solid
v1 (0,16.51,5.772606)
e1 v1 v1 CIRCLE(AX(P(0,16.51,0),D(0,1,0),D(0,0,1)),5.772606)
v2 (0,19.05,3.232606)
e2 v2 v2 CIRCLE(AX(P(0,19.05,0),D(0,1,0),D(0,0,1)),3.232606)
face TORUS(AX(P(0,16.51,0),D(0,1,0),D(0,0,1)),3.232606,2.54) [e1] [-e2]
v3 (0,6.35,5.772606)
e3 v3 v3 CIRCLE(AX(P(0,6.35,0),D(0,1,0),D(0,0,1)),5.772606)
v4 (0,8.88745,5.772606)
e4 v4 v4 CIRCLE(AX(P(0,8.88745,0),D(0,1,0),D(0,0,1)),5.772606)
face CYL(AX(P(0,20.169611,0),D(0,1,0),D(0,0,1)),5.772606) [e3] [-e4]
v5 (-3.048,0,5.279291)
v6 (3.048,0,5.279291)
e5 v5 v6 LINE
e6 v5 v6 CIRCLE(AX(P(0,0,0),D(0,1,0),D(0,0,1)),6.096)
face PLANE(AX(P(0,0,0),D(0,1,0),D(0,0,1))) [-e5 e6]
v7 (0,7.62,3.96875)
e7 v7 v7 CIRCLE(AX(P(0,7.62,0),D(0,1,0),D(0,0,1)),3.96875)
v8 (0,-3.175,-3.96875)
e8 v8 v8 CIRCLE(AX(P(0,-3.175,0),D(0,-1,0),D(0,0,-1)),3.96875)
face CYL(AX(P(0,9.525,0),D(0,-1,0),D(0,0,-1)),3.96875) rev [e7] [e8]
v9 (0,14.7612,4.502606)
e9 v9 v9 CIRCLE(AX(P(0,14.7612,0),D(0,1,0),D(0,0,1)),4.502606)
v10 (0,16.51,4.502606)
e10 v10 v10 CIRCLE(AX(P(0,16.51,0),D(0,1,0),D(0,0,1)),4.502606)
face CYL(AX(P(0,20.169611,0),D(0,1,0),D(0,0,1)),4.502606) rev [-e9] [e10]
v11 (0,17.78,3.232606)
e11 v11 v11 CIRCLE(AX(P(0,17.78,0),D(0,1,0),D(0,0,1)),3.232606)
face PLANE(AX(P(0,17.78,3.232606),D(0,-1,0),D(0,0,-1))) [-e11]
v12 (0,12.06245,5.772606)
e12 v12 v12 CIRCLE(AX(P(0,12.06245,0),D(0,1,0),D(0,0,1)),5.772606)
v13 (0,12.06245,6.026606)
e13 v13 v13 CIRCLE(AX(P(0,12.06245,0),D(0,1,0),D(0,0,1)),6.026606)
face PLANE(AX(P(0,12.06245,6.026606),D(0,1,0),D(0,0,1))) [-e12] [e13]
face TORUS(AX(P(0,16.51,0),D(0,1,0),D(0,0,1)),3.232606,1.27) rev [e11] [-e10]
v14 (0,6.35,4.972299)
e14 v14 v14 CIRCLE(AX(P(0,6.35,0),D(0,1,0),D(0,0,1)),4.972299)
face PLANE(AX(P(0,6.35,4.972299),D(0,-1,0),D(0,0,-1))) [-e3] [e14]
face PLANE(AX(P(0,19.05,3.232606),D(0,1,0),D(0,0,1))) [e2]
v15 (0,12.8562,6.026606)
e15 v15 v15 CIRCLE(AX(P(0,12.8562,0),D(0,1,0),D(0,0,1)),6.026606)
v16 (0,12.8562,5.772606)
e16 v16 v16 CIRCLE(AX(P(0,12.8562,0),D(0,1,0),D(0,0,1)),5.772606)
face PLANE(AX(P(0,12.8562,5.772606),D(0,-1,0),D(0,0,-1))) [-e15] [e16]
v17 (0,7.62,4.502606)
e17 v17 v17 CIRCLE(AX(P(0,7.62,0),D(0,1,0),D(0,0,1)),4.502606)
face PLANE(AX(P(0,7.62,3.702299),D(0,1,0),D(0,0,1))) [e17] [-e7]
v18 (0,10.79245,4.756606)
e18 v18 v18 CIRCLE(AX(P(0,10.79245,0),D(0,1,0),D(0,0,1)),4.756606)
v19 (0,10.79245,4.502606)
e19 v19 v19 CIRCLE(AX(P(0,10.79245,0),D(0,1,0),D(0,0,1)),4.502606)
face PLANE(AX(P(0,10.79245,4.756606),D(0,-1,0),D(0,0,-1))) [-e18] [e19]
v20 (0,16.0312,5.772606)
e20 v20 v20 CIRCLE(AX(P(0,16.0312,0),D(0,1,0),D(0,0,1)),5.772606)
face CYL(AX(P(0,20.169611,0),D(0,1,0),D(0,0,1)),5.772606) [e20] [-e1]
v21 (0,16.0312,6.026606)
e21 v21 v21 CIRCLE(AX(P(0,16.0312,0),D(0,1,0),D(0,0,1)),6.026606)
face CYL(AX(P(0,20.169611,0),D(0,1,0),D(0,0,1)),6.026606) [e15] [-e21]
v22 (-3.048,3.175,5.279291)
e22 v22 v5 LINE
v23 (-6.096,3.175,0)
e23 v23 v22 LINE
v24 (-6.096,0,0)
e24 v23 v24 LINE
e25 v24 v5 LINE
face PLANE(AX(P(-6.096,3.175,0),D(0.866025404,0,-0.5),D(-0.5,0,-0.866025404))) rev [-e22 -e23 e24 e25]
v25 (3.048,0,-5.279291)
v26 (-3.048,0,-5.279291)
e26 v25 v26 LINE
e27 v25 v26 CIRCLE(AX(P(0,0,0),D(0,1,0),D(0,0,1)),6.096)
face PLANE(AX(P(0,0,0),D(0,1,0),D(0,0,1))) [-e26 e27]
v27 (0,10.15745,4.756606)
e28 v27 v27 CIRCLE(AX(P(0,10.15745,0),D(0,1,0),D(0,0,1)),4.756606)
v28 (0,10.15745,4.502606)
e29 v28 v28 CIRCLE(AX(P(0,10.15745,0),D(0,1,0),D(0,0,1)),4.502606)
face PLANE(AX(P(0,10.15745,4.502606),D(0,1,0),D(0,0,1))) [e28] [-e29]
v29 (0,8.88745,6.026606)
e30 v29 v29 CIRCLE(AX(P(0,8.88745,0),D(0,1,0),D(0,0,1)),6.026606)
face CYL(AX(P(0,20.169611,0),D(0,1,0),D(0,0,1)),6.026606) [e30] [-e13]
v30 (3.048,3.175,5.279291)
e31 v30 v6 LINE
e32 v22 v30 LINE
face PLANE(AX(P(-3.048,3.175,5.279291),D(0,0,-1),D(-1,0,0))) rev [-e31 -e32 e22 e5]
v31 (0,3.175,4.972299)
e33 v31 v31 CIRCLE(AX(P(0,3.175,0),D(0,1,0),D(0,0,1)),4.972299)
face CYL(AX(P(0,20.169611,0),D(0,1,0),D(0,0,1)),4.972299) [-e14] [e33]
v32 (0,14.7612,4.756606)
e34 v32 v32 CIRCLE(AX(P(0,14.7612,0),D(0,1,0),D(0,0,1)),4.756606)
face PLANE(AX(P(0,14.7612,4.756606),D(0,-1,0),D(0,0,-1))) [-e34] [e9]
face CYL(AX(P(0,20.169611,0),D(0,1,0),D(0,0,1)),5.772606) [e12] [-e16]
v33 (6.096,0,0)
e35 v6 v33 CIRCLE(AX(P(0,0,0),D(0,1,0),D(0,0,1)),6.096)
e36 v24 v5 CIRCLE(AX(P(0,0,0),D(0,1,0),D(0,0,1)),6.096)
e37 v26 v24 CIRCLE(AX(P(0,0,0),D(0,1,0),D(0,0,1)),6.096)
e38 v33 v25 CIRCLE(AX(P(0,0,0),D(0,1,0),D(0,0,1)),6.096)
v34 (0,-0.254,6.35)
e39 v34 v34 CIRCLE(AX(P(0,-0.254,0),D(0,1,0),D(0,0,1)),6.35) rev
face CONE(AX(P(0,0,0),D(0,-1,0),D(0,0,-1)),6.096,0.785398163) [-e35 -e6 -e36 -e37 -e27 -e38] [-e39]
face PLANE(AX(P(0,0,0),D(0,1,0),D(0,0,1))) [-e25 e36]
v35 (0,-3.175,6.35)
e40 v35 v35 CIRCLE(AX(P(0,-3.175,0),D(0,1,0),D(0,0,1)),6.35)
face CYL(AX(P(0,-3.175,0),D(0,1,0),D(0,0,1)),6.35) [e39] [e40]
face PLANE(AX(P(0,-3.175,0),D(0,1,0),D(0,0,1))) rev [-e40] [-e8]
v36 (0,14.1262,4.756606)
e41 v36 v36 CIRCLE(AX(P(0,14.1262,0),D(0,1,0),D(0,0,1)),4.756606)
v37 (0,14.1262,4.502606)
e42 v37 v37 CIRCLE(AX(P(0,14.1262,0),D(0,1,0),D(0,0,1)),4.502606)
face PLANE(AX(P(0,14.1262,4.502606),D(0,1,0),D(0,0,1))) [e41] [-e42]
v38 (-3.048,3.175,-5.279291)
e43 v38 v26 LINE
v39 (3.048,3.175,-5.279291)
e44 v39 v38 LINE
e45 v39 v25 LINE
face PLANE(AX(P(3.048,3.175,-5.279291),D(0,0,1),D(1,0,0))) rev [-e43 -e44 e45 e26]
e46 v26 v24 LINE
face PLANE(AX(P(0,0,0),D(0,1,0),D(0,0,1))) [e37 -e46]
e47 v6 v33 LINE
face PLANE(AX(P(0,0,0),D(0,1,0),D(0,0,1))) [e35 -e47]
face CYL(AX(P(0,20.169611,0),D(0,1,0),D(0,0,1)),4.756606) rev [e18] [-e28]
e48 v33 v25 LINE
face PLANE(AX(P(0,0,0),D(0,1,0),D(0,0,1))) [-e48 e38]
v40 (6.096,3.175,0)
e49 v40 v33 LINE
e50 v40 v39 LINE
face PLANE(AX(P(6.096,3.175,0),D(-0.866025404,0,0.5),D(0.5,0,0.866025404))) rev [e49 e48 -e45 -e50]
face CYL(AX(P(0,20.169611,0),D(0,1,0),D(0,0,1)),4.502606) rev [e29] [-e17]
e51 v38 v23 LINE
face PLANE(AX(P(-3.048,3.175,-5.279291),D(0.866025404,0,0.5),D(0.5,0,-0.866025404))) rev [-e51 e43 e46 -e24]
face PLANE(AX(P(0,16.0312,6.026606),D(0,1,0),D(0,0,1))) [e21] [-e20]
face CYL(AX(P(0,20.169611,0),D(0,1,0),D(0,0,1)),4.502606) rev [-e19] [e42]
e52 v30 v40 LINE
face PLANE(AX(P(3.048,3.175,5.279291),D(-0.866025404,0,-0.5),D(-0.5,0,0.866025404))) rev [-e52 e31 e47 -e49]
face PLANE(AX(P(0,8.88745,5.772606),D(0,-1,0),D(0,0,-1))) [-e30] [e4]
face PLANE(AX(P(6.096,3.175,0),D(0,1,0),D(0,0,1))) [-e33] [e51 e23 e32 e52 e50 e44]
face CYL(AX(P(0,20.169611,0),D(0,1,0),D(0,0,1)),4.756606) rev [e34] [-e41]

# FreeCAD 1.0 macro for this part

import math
import FreeCAD as App
import Part
import Sketcher
Q = App.Units.Quantity


def edges_at(feature, points):
    """Names of the edges that pass closest to the given points."""
    edges = feature.Shape.Edges
    near = lambda p: min(range(len(edges)), key=lambda i: edges[i].distToShape(Part.Vertex(*p))[0])
    return sorted({f"Edge{near(p) + 1}" for p in points})


def add_polygon(sketch, points):
    """Adds a closed chain of lines whose ends are joined by coincident constraints."""
    first, n = sketch.GeometryCount, len(points)
    for a, b in zip(points, points[1:] + points[:1]):
        sketch.addGeometry(Part.LineSegment(App.Vector(*a, 0), App.Vector(*b, 0)), False)
    for i in range(n):
        sketch.addConstraint(Sketcher.Constraint("Coincident", first + i, 2, first + (i + 1) % n, 1))

doc = App.newDocument("Part")
body = doc.addObject("PartDesign::Body", "Body")

sketch1 = body.newObject("Sketcher::SketchObject", "Sketch")
sketch1.AttachmentSupport = (doc.getObject("XZ_Plane"), [""])
sketch1.MapMode = "FlatFace"
sketch1.addGeometry(Part.Circle(App.Vector(0, 0, 0), App.Vector(0, 0, 1), 6.35), False)
sketch1.addConstraint(Sketcher.Constraint("Coincident", 0, 3, -1, 1))
sketch1.addConstraint(Sketcher.Constraint("Diameter", 0, Q("0.5 in")))
pad1 = body.newObject("PartDesign::Pad", "Pad")
pad1.Profile = sketch1
pad1.Length = Q("0.125 in")
doc.recompute()

chamfer = body.newObject("PartDesign::Chamfer", "Chamfer")
chamfer.Base = (pad1, edges_at(pad1, [(-6.35, 0, 0)]))
chamfer.Size = Q("0.01 in")

sketch2 = body.newObject("Sketcher::SketchObject", "Sketch001")
sketch2.AttachmentSupport = (doc.getObject("XZ_Plane"), [""])
sketch2.MapMode = "FlatFace"
add_polygon(sketch2, [(6.096, 0), (3.048, -5.279291), (-3.048, -5.279291), (-6.096, 0), (-3.048, 5.279291), (3.048, 5.279291)])
sketch2.addConstraint(Sketcher.Constraint("Horizontal", 1))
sketch2.addConstraint(Sketcher.Constraint("Horizontal", 4))
sketch2.addConstraint(Sketcher.Constraint("Symmetric", 0, 2, 3, 2, -1, 1))
sketch2.addConstraint(Sketcher.Constraint("Symmetric", 2, 2, 5, 2, -1, 1))
sketch2.addConstraint(Sketcher.Constraint("PointOnObject", 2, 2, -1))
sketch2.addConstraint(Sketcher.Constraint("Parallel", 2, 5))
sketch2.addConstraint(Sketcher.Constraint("Vertical", 1, 2, 3, 2))
sketch2.addConstraint(Sketcher.Constraint("Angle", 0, Q("-120 deg")))
sketch2.addConstraint(Sketcher.Constraint("DistanceX", 1, 2, 1, 1, Q("0.24 in")))
sketch2.addConstraint(Sketcher.Constraint("Distance", 0, Q("0.24 in")))
pad2 = body.newObject("PartDesign::Pad", "Pad001")
pad2.Profile = sketch2
pad2.Length = Q("0.125 in")
pad2.Reversed = True

sketch3 = body.newObject("Sketcher::SketchObject", "Sketch002")
sketch3.AttachmentSupport = (doc.getObject("YZ_Plane"), [""])
sketch3.MapMode = "FlatFace"
sketch3.addGeometry(Part.LineSegment(App.Vector(6.35, 4.972299, 0), App.Vector(3.175, 4.972299, 0)), False)
sketch3.addGeometry(Part.LineSegment(App.Vector(3.175, 4.972299, 0), App.Vector(3.175, 0, 0)), False)
sketch3.addGeometry(Part.LineSegment(App.Vector(3.175, 0, 0), App.Vector(4.445, 0, 0)), False)
sketch3.addGeometry(Part.LineSegment(App.Vector(4.445, 0, 0), App.Vector(4.445, 3.702299, 0)), False)
sketch3.addGeometry(Part.LineSegment(App.Vector(4.445, 3.702299, 0), App.Vector(7.62, 3.702299, 0)), False)
sketch3.addGeometry(Part.LineSegment(App.Vector(7.62, 3.702299, 0), App.Vector(7.62, 4.502606, 0)), False)
sketch3.addGeometry(Part.LineSegment(App.Vector(7.62, 4.502606, 0), App.Vector(10.15745, 4.502606, 0)), False)
sketch3.addGeometry(Part.LineSegment(App.Vector(10.15745, 4.502606, 0), App.Vector(10.15745, 4.756606, 0)), False)
sketch3.addGeometry(Part.LineSegment(App.Vector(10.15745, 4.756606, 0), App.Vector(10.79245, 4.756606, 0)), False)
sketch3.addGeometry(Part.LineSegment(App.Vector(10.79245, 4.756606, 0), App.Vector(10.79245, 4.502606, 0)), False)
sketch3.addGeometry(Part.LineSegment(App.Vector(10.79245, 4.502606, 0), App.Vector(14.1262, 4.502606, 0)), False)
sketch3.addGeometry(Part.LineSegment(App.Vector(14.1262, 4.502606, 0), App.Vector(14.1262, 4.756606, 0)), False)
sketch3.addGeometry(Part.LineSegment(App.Vector(14.1262, 4.756606, 0), App.Vector(14.7612, 4.756606, 0)), False)
sketch3.addGeometry(Part.LineSegment(App.Vector(14.7612, 4.756606, 0), App.Vector(14.7612, 4.502606, 0)), False)
sketch3.addGeometry(Part.LineSegment(App.Vector(14.7612, 4.502606, 0), App.Vector(16.51, 4.502606, 0)), False)
sketch3.addGeometry(Part.ArcOfCircle(Part.Circle(App.Vector(16.51, 3.232606, 0), App.Vector(0, 0, 1), 1.27), math.radians(0), math.radians(90)), False)
sketch3.addGeometry(Part.LineSegment(App.Vector(17.78, 3.232606, 0), App.Vector(17.78, 0, 0)), False)
sketch3.addGeometry(Part.LineSegment(App.Vector(17.78, 0, 0), App.Vector(19.05, 0, 0)), False)
sketch3.addGeometry(Part.LineSegment(App.Vector(19.05, 0, 0), App.Vector(19.05, 3.232606, 0)), False)
sketch3.addGeometry(Part.ArcOfCircle(Part.Circle(App.Vector(16.51, 3.232606, 0), App.Vector(0, 0, 1), 2.54), math.radians(0), math.radians(90)), False)
sketch3.addGeometry(Part.LineSegment(App.Vector(16.51, 5.772606, 0), App.Vector(16.0312, 5.772606, 0)), False)
sketch3.addGeometry(Part.LineSegment(App.Vector(16.0312, 5.772606, 0), App.Vector(16.0312, 6.026606, 0)), False)
sketch3.addGeometry(Part.LineSegment(App.Vector(16.0312, 6.026606, 0), App.Vector(12.8562, 6.026606, 0)), False)
sketch3.addGeometry(Part.LineSegment(App.Vector(12.8562, 6.026606, 0), App.Vector(12.8562, 5.772606, 0)), False)
sketch3.addGeometry(Part.LineSegment(App.Vector(12.8562, 5.772606, 0), App.Vector(12.06245, 5.772606, 0)), False)
sketch3.addGeometry(Part.LineSegment(App.Vector(12.06245, 5.772606, 0), App.Vector(12.06245, 6.026606, 0)), False)
sketch3.addGeometry(Part.LineSegment(App.Vector(12.06245, 6.026606, 0), App.Vector(8.88745, 6.026606, 0)), False)
sketch3.addGeometry(Part.LineSegment(App.Vector(8.88745, 6.026606, 0), App.Vector(8.88745, 5.772606, 0)), False)
sketch3.addGeometry(Part.LineSegment(App.Vector(8.88745, 5.772606, 0), App.Vector(6.35, 5.772606, 0)), False)
sketch3.addGeometry(Part.LineSegment(App.Vector(6.35, 5.772606, 0), App.Vector(6.35, 4.972299, 0)), False)
sketch3.addConstraint(Sketcher.Constraint("Coincident", 0, 2, 1, 1))
sketch3.addConstraint(Sketcher.Constraint("Coincident", 1, 2, 2, 1))
sketch3.addConstraint(Sketcher.Constraint("Coincident", 2, 2, 3, 1))
sketch3.addConstraint(Sketcher.Constraint("Coincident", 3, 2, 4, 1))
sketch3.addConstraint(Sketcher.Constraint("Coincident", 4, 2, 5, 1))
sketch3.addConstraint(Sketcher.Constraint("Coincident", 5, 2, 6, 1))
sketch3.addConstraint(Sketcher.Constraint("Coincident", 6, 2, 7, 1))
sketch3.addConstraint(Sketcher.Constraint("Coincident", 7, 2, 8, 1))
sketch3.addConstraint(Sketcher.Constraint("Coincident", 8, 2, 9, 1))
sketch3.addConstraint(Sketcher.Constraint("Coincident", 9, 2, 10, 1))
sketch3.addConstraint(Sketcher.Constraint("Coincident", 10, 2, 11, 1))
sketch3.addConstraint(Sketcher.Constraint("Coincident", 11, 2, 12, 1))
sketch3.addConstraint(Sketcher.Constraint("Coincident", 12, 2, 13, 1))
sketch3.addConstraint(Sketcher.Constraint("Coincident", 13, 2, 14, 1))
sketch3.addConstraint(Sketcher.Constraint("Tangent", 14, 2, 15, 2))
sketch3.addConstraint(Sketcher.Constraint("Tangent", 15, 1, 16, 1))
sketch3.addConstraint(Sketcher.Constraint("Coincident", 16, 2, 17, 1))
sketch3.addConstraint(Sketcher.Constraint("Coincident", 17, 2, 18, 1))
sketch3.addConstraint(Sketcher.Constraint("Tangent", 18, 2, 19, 1))
sketch3.addConstraint(Sketcher.Constraint("Tangent", 19, 2, 20, 1))
sketch3.addConstraint(Sketcher.Constraint("Coincident", 20, 2, 21, 1))
sketch3.addConstraint(Sketcher.Constraint("Coincident", 21, 2, 22, 1))
sketch3.addConstraint(Sketcher.Constraint("Coincident", 22, 2, 23, 1))
sketch3.addConstraint(Sketcher.Constraint("Coincident", 23, 2, 24, 1))
sketch3.addConstraint(Sketcher.Constraint("Coincident", 24, 2, 25, 1))
sketch3.addConstraint(Sketcher.Constraint("Coincident", 25, 2, 26, 1))
sketch3.addConstraint(Sketcher.Constraint("Coincident", 26, 2, 27, 1))
sketch3.addConstraint(Sketcher.Constraint("Coincident", 27, 2, 28, 1))
sketch3.addConstraint(Sketcher.Constraint("Coincident", 28, 2, 29, 1))
sketch3.addConstraint(Sketcher.Constraint("Coincident", 29, 2, 0, 1))
sketch3.addConstraint(Sketcher.Constraint("Horizontal", 0))
sketch3.addConstraint(Sketcher.Constraint("Vertical", 1))
sketch3.addConstraint(Sketcher.Constraint("Horizontal", 2))
sketch3.addConstraint(Sketcher.Constraint("Vertical", 3))
sketch3.addConstraint(Sketcher.Constraint("Horizontal", 4))
sketch3.addConstraint(Sketcher.Constraint("Vertical", 5))
sketch3.addConstraint(Sketcher.Constraint("Horizontal", 6))
sketch3.addConstraint(Sketcher.Constraint("Vertical", 7))
sketch3.addConstraint(Sketcher.Constraint("Horizontal", 8))
sketch3.addConstraint(Sketcher.Constraint("Vertical", 9))
sketch3.addConstraint(Sketcher.Constraint("Horizontal", 10))
sketch3.addConstraint(Sketcher.Constraint("Vertical", 11))
sketch3.addConstraint(Sketcher.Constraint("Horizontal", 12))
sketch3.addConstraint(Sketcher.Constraint("Vertical", 13))
sketch3.addConstraint(Sketcher.Constraint("Horizontal", 14))
sketch3.addConstraint(Sketcher.Constraint("Vertical", 16))
sketch3.addConstraint(Sketcher.Constraint("Horizontal", 17))
sketch3.addConstraint(Sketcher.Constraint("Vertical", 18))
sketch3.addConstraint(Sketcher.Constraint("Horizontal", 20))
sketch3.addConstraint(Sketcher.Constraint("Vertical", 21))
sketch3.addConstraint(Sketcher.Constraint("Horizontal", 22))
sketch3.addConstraint(Sketcher.Constraint("Vertical", 23))
sketch3.addConstraint(Sketcher.Constraint("Horizontal", 24))
sketch3.addConstraint(Sketcher.Constraint("Vertical", 25))
sketch3.addConstraint(Sketcher.Constraint("Horizontal", 26))
sketch3.addConstraint(Sketcher.Constraint("Vertical", 27))
sketch3.addConstraint(Sketcher.Constraint("Horizontal", 28))
sketch3.addConstraint(Sketcher.Constraint("Vertical", 29))
sketch3.addConstraint(Sketcher.Constraint("Coincident", 19, 3, 15, 3))
sketch3.addConstraint(Sketcher.Constraint("PointOnObject", 1, 2, -1))
sketch3.addConstraint(Sketcher.Constraint("PointOnObject", 16, 2, -1))
sketch3.addConstraint(Sketcher.Constraint("Horizontal", 6, 2, 9, 2))
sketch3.addConstraint(Sketcher.Constraint("Horizontal", 8, 2, 11, 2))
sketch3.addConstraint(Sketcher.Constraint("Horizontal", 10, 2, 13, 2))
sketch3.addConstraint(Sketcher.Constraint("Horizontal", 20, 2, 23, 2))
sketch3.addConstraint(Sketcher.Constraint("Horizontal", 22, 2, 25, 2))
sketch3.addConstraint(Sketcher.Constraint("Horizontal", 24, 2, 27, 2))
sketch3.addConstraint(Sketcher.Constraint("Equal", 0, 4))
sketch3.addConstraint(Sketcher.Constraint("Equal", 8, 12))
sketch3.addConstraint(Sketcher.Constraint("Equal", 2, 17))
sketch3.addConstraint(Sketcher.Constraint("Equal", 4, 22))
sketch3.addConstraint(Sketcher.Constraint("Equal", 22, 26))
sketch3.addConstraint(Sketcher.Constraint("Equal", 6, 28))
sketch3.addConstraint(Sketcher.Constraint("Equal", 13, 21))
sketch3.addConstraint(Sketcher.Constraint("Equal", 5, 29))
sketch3.addConstraint(Sketcher.Constraint("Radius", 19, Q("0.1 in")))
sketch3.addConstraint(Sketcher.Constraint("Radius", 15, Q("0.05 in")))
sketch3.addConstraint(Sketcher.Constraint("DistanceY", 7, 1, 7, 2, Q("0.01 in")))
sketch3.addConstraint(Sketcher.Constraint("DistanceX", -1, 1, 4, 2, Q("0.3 in")))
sketch3.addConstraint(Sketcher.Constraint("DistanceX", -1, 1, 15, 1, Q("0.7 in")))
sketch3.addConstraint(Sketcher.Constraint("DistanceX", 0, 2, 0, 1, Q("0.125 in")))
sketch3.addConstraint(Sketcher.Constraint("DistanceX", 8, 1, 8, 2, Q("0.025 in")))
sketch3.addConstraint(Sketcher.Constraint("DistanceX", 24, 2, 24, 1, Q("0.03125 in")))
sketch3.addConstraint(Sketcher.Constraint("DistanceX", 12, 2, 20, 2, Q("0.05 in")))
sketch3.addConstraint(Sketcher.Constraint("DistanceX", 14, 1, 14, 2, 1.7488))
sketch3.addConstraint(Sketcher.Constraint("DistanceY", 1, 2, 1, 1, 4.972299))
sketch3.addConstraint(Sketcher.Constraint("DistanceY", 5, 1, 5, 2, 0.800307))
revolution = body.newObject("PartDesign::Revolution", "Revolution")
revolution.Profile = sketch3
revolution.ReferenceAxis = (sketch3, ["H_Axis"])
revolution.Angle = 360

sketch4 = body.newObject("Sketcher::SketchObject", "Sketch003")
sketch4.AttachmentSupport = (doc.getObject("XZ_Plane"), [""])
sketch4.MapMode = "FlatFace"
sketch4.AttachmentOffset = App.Placement(App.Vector(0, 0, 0.125 * 25.4), App.Rotation())
sketch4.addGeometry(Part.Circle(App.Vector(0, 0, 0), App.Vector(0, 0, 1), 3.96875), False)
sketch4.addConstraint(Sketcher.Constraint("Coincident", 0, 3, -1, 1))
sketch4.addConstraint(Sketcher.Constraint("Diameter", 0, Q("0.3125 in")))
pocket1 = body.newObject("PartDesign::Pocket", "Pocket")
pocket1.Profile = sketch4
pocket1.Length = Q("0.5 in")

doc.recompute()
